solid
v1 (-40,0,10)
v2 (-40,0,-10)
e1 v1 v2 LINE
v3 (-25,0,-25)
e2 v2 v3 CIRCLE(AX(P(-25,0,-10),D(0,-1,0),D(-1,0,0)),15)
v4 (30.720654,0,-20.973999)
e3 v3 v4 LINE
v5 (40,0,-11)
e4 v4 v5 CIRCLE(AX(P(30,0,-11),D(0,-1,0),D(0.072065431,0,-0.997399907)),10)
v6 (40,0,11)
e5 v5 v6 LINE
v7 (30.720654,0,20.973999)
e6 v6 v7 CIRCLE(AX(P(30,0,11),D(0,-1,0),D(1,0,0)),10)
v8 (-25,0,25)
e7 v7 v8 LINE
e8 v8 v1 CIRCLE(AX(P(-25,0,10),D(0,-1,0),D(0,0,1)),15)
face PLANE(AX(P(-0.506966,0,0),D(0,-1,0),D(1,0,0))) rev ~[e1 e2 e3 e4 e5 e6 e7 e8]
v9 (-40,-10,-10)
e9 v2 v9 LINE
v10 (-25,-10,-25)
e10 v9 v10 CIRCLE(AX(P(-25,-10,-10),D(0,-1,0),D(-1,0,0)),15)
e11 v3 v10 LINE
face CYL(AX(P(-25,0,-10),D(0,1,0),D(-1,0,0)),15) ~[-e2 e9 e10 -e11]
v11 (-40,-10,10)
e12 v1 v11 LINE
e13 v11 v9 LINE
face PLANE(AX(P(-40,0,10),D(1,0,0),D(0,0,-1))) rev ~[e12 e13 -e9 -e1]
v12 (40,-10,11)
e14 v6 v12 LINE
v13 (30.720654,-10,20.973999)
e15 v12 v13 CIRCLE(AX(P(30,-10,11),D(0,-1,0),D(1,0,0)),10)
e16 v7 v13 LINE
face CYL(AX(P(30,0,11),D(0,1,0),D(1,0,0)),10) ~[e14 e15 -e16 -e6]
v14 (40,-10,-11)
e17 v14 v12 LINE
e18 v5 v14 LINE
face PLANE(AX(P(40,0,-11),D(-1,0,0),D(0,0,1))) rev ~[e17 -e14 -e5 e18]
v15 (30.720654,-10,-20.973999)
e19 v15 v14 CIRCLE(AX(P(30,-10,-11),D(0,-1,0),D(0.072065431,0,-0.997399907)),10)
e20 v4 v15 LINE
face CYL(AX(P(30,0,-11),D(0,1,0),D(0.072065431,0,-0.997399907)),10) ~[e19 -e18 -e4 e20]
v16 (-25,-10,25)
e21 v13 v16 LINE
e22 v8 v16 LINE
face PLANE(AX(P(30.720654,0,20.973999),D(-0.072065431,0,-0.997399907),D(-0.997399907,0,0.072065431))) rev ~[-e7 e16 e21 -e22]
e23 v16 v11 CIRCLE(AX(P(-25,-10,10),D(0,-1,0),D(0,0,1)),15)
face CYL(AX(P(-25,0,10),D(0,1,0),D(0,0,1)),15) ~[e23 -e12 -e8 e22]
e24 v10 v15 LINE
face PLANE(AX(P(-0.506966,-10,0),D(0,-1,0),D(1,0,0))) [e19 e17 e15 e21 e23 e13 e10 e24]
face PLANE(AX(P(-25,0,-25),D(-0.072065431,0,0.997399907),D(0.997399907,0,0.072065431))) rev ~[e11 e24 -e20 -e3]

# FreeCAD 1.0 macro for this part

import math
import FreeCAD as App
import Part
import Sketcher
from FreeCAD import Vector
Q = App.Units.Quantity

doc = App.newDocument("Part")
body = doc.addObject("PartDesign::Body", "Body")

# Sketch on XZ plane
sketch1 = body.newObject("Sketcher::SketchObject", "Sketch")
sketch1.AttachmentSupport = (doc.getObject("XZ_Plane"), [""])
sketch1.MapMode = "FlatFace"
sketch1.addGeometry([
    Part.LineSegment(Vector(-40, 10, 0), Vector(-40, -10, 0)),  # 0
    Part.ArcOfCircle(Part.Circle(Vector(-25, -10, 0), Vector(0, 0, 1), 15), math.radians(180), math.radians(270)),  # 1
    Part.LineSegment(Vector(-25, -25, 0), Vector(30.720654, -20.973999, 0)),  # 2
    Part.ArcOfCircle(Part.Circle(Vector(30, -11, 0), Vector(0, 0, 1), 10), math.radians(-85.867373), math.radians(0)),  # 3
    Part.LineSegment(Vector(40, -11, 0), Vector(40, 11, 0)),  # 4
    Part.ArcOfCircle(Part.Circle(Vector(30, 11, 0), Vector(0, 0, 1), 10), math.radians(0), math.radians(85.867373)),  # 5
    Part.LineSegment(Vector(30.720654, 20.973999, 0), Vector(-25, 25, 0)),  # 6
    Part.ArcOfCircle(Part.Circle(Vector(-25, 10, 0), Vector(0, 0, 1), 15), math.radians(90), math.radians(180)),  # 7
], False)
sketch1.addConstraint([
    Sketcher.Constraint("Tangent", 0, 2, 1, 1),
    Sketcher.Constraint("Coincident", 1, 2, 2, 1),
    Sketcher.Constraint("Tangent", 2, 2, 3, 1),
    Sketcher.Constraint("Tangent", 3, 2, 4, 1),
    Sketcher.Constraint("Tangent", 4, 2, 5, 1),
    Sketcher.Constraint("Tangent", 5, 2, 6, 1),
    Sketcher.Constraint("Coincident", 6, 2, 7, 1),
    Sketcher.Constraint("Tangent", 7, 2, 0, 1),
    Sketcher.Constraint("Vertical", 0),
    Sketcher.Constraint("Vertical", 4),
    Sketcher.Constraint("Equal", 3, 5),
    Sketcher.Constraint("Equal", 1, 7),
    Sketcher.Constraint("Symmetric", 2, 2, 5, 2, -1),
    Sketcher.Constraint("Vertical", 7, 3, 1, 2),
    Sketcher.Constraint("Vertical", 1, 2, 6, 2),
    Sketcher.Constraint("Radius", 1, Q("15 mm")),
    Sketcher.Constraint("Radius", 3, Q("10 mm")),
    Sketcher.Constraint("DistanceY", 0, 2, 0, 1, Q("20 mm")),
    Sketcher.Constraint("DistanceY", 4, 1, 4, 2, Q("22 mm")),
    Sketcher.Constraint("DistanceX", 1, 3, -1, 1, Q("25 mm")),
    Sketcher.Constraint("DistanceX", -1, 1, 3, 3, Q("30 mm")),
])
pad1 = body.newObject("PartDesign::Pad", "Pad")
pad1.Profile = sketch1
pad1.Length = 10

doc.recompute()
